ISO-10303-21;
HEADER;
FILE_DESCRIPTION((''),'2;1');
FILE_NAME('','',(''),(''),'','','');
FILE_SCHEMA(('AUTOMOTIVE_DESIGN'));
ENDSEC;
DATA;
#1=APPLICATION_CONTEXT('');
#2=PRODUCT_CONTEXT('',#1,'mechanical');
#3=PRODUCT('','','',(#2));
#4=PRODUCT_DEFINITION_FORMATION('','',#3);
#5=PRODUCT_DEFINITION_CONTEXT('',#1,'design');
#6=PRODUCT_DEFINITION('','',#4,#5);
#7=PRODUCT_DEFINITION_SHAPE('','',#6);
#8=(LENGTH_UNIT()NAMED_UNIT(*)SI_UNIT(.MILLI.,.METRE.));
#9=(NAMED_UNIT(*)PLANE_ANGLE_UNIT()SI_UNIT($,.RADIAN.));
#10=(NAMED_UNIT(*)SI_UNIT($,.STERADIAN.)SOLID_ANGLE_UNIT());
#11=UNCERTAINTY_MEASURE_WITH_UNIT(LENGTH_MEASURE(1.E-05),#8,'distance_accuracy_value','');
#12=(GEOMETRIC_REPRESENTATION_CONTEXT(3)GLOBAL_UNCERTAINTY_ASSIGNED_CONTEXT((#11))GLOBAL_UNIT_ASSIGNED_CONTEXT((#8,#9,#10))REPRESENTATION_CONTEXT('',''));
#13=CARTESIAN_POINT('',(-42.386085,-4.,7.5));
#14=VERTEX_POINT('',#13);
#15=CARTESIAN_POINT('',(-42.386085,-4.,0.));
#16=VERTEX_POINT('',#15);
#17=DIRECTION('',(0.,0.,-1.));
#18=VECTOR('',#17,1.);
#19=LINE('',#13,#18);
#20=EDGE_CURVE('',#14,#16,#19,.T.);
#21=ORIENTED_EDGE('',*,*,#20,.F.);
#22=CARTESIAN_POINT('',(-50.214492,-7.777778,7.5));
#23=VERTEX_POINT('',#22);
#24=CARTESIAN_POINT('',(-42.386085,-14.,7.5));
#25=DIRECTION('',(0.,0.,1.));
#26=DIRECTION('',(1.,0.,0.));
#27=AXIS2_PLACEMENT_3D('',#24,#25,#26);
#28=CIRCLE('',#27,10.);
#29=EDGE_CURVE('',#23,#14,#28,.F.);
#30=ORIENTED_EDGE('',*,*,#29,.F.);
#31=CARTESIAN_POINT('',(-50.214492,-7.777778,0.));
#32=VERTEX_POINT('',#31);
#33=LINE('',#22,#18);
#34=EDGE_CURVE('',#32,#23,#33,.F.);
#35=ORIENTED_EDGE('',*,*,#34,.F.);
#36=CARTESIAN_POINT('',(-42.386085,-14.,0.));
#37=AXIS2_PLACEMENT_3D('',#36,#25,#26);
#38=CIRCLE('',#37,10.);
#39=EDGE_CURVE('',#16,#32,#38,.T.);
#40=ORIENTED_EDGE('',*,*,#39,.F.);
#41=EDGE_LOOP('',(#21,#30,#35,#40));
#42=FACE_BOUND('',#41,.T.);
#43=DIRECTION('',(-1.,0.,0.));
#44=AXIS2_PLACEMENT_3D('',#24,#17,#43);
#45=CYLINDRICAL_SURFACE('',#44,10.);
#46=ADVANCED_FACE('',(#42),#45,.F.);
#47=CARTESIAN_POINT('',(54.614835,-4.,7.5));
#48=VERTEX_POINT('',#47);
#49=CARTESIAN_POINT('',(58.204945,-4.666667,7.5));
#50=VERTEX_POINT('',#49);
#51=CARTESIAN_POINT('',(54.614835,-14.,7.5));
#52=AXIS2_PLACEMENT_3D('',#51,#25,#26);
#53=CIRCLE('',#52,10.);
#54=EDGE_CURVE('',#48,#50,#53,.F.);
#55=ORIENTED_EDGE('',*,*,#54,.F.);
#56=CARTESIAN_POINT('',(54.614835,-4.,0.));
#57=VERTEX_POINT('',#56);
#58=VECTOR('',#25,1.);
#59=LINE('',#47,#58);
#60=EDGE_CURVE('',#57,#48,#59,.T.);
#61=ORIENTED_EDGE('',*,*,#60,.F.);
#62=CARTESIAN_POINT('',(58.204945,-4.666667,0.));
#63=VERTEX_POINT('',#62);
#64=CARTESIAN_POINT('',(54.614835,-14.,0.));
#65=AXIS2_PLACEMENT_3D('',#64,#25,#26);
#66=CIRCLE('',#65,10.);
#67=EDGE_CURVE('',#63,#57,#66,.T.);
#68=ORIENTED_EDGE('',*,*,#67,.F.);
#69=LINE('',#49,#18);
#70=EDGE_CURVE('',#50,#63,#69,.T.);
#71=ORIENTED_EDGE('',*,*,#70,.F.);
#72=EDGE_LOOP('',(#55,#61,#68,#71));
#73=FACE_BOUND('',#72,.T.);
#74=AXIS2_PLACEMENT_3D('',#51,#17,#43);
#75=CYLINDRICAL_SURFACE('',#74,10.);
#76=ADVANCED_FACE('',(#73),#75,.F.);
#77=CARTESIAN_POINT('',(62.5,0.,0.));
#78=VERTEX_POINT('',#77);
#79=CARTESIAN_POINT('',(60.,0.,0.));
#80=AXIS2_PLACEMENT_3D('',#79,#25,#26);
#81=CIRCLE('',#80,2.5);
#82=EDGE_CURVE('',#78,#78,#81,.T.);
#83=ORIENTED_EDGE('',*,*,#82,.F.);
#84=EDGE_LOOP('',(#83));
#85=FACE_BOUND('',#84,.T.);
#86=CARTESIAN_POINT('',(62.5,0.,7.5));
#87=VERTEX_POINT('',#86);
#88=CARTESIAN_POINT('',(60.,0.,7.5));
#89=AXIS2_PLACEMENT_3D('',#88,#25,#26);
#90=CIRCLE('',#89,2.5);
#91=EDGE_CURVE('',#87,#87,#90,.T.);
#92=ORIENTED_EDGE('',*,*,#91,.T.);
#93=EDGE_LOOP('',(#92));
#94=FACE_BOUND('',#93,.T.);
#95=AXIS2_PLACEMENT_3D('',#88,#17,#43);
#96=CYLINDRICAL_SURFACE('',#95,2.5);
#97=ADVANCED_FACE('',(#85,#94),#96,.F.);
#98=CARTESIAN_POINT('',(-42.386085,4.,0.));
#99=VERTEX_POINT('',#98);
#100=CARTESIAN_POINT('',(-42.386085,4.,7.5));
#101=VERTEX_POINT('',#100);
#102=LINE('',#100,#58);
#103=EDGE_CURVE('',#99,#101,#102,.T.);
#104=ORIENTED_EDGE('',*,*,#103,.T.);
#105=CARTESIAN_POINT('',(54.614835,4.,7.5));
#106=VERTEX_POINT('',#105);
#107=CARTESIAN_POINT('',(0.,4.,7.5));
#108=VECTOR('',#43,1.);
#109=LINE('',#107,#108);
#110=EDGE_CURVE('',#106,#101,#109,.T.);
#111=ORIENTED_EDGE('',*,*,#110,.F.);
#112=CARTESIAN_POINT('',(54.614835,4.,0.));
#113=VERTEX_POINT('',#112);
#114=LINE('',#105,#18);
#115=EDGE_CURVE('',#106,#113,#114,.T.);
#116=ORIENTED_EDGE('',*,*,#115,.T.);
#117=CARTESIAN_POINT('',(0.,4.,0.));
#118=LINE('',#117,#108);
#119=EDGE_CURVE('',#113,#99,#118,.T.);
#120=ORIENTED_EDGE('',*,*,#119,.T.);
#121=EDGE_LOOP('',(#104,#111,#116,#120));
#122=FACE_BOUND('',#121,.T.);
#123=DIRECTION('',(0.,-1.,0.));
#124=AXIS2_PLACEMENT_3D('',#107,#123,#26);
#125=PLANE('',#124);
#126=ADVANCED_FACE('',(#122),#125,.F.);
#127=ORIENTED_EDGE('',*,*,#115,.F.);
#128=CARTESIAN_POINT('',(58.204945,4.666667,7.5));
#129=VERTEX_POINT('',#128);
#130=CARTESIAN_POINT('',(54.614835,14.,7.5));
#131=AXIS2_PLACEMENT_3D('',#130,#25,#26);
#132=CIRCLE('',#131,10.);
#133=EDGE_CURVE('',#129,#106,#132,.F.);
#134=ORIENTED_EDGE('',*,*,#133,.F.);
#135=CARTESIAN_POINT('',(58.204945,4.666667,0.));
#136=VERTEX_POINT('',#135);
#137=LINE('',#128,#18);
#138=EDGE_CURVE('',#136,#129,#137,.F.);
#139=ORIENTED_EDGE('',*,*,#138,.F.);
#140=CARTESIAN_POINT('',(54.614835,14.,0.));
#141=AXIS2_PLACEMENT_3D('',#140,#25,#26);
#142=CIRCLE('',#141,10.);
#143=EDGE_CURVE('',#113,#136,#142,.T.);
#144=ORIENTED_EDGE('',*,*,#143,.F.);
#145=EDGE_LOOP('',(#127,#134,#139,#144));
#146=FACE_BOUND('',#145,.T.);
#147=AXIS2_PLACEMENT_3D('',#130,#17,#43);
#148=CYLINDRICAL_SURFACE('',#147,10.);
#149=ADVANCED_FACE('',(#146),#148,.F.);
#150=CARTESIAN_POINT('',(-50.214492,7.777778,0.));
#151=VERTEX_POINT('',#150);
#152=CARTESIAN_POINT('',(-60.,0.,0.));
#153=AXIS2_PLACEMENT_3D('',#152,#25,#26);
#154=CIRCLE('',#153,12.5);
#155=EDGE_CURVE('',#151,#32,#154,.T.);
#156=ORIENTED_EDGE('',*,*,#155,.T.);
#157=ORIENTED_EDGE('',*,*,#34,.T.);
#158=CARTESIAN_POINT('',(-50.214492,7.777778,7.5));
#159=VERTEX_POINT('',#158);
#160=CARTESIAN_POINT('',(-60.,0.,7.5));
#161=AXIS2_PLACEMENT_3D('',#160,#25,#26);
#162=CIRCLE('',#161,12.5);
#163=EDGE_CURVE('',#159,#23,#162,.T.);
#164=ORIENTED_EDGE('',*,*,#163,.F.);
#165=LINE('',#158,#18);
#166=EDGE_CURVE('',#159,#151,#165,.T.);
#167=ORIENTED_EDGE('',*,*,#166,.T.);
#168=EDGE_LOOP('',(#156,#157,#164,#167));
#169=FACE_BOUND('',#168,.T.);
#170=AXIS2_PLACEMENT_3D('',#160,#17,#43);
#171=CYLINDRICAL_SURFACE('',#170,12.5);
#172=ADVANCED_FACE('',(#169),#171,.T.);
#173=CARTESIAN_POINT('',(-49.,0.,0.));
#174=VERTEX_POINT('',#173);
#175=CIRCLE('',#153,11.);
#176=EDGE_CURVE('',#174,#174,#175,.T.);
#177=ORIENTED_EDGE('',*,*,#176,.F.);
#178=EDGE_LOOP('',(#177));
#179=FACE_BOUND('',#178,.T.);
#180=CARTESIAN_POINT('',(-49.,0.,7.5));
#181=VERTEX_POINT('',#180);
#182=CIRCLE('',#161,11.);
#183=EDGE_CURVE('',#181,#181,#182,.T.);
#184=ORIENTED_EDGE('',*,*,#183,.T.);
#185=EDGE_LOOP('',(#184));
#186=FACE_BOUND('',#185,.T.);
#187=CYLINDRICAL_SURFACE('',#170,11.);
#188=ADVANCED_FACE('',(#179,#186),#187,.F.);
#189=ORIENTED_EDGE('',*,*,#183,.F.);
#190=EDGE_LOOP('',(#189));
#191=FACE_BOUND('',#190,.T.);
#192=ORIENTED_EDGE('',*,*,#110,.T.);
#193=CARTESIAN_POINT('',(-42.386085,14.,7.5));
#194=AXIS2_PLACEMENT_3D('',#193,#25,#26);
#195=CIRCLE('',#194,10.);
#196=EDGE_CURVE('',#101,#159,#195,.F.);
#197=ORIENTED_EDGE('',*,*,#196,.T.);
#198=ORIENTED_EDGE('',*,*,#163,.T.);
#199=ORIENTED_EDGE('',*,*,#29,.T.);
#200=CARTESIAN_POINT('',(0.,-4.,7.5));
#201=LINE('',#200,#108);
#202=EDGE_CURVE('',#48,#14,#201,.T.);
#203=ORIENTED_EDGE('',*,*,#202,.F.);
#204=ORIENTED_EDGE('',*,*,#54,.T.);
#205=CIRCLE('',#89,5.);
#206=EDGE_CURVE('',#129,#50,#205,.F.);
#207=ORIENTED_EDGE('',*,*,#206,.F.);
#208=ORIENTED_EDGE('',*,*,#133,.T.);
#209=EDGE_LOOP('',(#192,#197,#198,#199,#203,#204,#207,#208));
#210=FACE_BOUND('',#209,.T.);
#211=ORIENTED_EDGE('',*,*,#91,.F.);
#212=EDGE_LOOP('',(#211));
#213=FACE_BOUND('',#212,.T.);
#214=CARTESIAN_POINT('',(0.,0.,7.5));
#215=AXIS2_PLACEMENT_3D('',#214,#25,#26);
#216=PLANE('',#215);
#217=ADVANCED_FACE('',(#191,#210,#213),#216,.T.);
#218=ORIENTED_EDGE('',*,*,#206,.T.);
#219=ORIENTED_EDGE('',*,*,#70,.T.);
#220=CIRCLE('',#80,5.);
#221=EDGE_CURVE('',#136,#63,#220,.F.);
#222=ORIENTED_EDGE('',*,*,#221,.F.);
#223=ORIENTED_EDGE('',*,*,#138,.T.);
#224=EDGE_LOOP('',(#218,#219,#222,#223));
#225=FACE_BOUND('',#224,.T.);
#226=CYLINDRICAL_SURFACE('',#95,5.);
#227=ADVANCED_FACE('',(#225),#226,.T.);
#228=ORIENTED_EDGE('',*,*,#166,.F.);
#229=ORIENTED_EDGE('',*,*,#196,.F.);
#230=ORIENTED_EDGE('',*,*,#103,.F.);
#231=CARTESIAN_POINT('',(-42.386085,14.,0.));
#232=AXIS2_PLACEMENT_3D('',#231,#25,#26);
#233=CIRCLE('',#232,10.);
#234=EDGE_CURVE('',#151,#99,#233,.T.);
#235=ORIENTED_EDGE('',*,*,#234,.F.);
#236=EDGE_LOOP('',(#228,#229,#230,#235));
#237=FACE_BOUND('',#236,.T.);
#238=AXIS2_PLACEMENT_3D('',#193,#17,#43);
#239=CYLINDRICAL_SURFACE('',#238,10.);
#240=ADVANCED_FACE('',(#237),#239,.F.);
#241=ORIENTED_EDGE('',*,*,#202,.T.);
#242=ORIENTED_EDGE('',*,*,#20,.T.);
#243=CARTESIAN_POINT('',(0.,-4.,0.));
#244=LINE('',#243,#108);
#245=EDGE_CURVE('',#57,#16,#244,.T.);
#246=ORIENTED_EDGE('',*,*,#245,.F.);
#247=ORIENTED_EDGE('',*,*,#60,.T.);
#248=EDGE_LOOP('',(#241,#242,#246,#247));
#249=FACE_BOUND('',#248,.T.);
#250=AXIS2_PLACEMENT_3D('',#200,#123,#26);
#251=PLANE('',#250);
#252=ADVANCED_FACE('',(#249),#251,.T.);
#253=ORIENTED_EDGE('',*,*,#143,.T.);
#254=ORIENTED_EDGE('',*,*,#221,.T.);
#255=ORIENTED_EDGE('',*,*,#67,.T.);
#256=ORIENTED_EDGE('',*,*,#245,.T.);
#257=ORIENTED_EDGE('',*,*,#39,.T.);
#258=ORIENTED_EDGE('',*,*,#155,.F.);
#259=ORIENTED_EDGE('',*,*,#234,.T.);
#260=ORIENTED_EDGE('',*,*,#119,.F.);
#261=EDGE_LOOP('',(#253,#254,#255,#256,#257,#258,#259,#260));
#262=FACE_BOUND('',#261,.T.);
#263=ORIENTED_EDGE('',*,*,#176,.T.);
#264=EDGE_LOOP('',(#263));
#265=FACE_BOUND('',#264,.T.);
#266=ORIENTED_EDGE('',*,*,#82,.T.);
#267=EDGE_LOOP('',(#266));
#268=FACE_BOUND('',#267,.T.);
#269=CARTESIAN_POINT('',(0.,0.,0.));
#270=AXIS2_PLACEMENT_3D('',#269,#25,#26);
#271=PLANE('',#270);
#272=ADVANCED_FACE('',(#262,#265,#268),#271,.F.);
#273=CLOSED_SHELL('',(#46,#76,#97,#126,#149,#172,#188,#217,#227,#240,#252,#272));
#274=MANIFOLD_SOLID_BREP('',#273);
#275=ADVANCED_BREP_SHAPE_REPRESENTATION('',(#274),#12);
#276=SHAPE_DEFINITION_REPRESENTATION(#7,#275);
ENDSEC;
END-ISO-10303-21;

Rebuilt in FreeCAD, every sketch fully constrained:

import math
import FreeCAD as App
import Part
import Sketcher
Q = App.Units.Quantity


def edges_at(feature, points):
    """Names of the edges that pass closest to the given points."""
    edges = feature.Shape.Edges
    near = lambda p: min(range(len(edges)), key=lambda i: edges[i].distToShape(Part.Vertex(*p))[0])
    return sorted({f"Edge{near(p) + 1}" for p in points})

doc = App.newDocument("Part")
body = doc.addObject("PartDesign::Body", "Body")

# Sketch on XY plane
sketch1 = body.newObject("Sketcher::SketchObject", "Sketch")
sketch1.AttachmentSupport = (doc.getObject("XY_Plane"), [""])
sketch1.MapMode = "FlatFace"
sketch1.addGeometry([
    Part.LineSegment(App.Vector(57, 4, 0), App.Vector(-48.2, 4, 0)),  # 0
    Part.ArcOfCircle(Part.Circle(App.Vector(-60, 0, 0), App.Vector(0, 0, 1), 12.5), math.radians(19), math.radians(341)),  # 1
    Part.LineSegment(App.Vector(-48.2, -4, 0), App.Vector(57, -4, 0)),  # 2
    Part.ArcOfCircle(Part.Circle(App.Vector(60, 0, 0), App.Vector(0, 0, 1), 5), math.radians(-127), math.radians(127)),  # 3
    Part.Circle(App.Vector(-60, 0, 0), App.Vector(0, 0, 1), 11),  # 4
    Part.Circle(App.Vector(60, 0, 0), App.Vector(0, 0, 1), 2.5),  # 5
], False)
sketch1.addConstraint([
    Sketcher.Constraint("Coincident", 0, 2, 1, 1),
    Sketcher.Constraint("Coincident", 1, 2, 2, 1),
    Sketcher.Constraint("Coincident", 2, 2, 3, 1),
    Sketcher.Constraint("Coincident", 3, 2, 0, 1),
    Sketcher.Constraint("Horizontal", 0),
    Sketcher.Constraint("Horizontal", 2),
    Sketcher.Constraint("Coincident", 4, 3, 1, 3),
    Sketcher.Constraint("Coincident", 5, 3, 3, 3),
    Sketcher.Constraint("Symmetric", 1, 3, 3, 3, -1, 1),
    Sketcher.Constraint("Symmetric", 0, 2, 1, 2, -1),
    Sketcher.Constraint("Diameter", 4, Q("22 mm")),
    Sketcher.Constraint("Diameter", 5, Q("5 mm")),
    Sketcher.Constraint("Radius", 3, Q("5 mm")),
    Sketcher.Constraint("Radius", 1, Q("12.5 mm")),
    Sketcher.Constraint("DistanceX", 1, 3, -1, 1, Q("60 mm")),
    Sketcher.Constraint("DistanceY", -1, 1, 0, 2, Q("4 mm")),
])
pad1 = body.newObject("PartDesign::Pad", "Pad")
pad1.Profile = sketch1
pad1.Length = 7.5
doc.recompute()

fillet = body.newObject("PartDesign::Fillet", "Fillet")
fillet.Base = (pad1, edges_at(pad1, [
    (57, 4, 3.75),
    (57, -4, 3.75),
    (-48.157, -4, 3.75),
    (-48.157, 4, 3.75),
]))
fillet.Radius = 10

doc.recompute()
